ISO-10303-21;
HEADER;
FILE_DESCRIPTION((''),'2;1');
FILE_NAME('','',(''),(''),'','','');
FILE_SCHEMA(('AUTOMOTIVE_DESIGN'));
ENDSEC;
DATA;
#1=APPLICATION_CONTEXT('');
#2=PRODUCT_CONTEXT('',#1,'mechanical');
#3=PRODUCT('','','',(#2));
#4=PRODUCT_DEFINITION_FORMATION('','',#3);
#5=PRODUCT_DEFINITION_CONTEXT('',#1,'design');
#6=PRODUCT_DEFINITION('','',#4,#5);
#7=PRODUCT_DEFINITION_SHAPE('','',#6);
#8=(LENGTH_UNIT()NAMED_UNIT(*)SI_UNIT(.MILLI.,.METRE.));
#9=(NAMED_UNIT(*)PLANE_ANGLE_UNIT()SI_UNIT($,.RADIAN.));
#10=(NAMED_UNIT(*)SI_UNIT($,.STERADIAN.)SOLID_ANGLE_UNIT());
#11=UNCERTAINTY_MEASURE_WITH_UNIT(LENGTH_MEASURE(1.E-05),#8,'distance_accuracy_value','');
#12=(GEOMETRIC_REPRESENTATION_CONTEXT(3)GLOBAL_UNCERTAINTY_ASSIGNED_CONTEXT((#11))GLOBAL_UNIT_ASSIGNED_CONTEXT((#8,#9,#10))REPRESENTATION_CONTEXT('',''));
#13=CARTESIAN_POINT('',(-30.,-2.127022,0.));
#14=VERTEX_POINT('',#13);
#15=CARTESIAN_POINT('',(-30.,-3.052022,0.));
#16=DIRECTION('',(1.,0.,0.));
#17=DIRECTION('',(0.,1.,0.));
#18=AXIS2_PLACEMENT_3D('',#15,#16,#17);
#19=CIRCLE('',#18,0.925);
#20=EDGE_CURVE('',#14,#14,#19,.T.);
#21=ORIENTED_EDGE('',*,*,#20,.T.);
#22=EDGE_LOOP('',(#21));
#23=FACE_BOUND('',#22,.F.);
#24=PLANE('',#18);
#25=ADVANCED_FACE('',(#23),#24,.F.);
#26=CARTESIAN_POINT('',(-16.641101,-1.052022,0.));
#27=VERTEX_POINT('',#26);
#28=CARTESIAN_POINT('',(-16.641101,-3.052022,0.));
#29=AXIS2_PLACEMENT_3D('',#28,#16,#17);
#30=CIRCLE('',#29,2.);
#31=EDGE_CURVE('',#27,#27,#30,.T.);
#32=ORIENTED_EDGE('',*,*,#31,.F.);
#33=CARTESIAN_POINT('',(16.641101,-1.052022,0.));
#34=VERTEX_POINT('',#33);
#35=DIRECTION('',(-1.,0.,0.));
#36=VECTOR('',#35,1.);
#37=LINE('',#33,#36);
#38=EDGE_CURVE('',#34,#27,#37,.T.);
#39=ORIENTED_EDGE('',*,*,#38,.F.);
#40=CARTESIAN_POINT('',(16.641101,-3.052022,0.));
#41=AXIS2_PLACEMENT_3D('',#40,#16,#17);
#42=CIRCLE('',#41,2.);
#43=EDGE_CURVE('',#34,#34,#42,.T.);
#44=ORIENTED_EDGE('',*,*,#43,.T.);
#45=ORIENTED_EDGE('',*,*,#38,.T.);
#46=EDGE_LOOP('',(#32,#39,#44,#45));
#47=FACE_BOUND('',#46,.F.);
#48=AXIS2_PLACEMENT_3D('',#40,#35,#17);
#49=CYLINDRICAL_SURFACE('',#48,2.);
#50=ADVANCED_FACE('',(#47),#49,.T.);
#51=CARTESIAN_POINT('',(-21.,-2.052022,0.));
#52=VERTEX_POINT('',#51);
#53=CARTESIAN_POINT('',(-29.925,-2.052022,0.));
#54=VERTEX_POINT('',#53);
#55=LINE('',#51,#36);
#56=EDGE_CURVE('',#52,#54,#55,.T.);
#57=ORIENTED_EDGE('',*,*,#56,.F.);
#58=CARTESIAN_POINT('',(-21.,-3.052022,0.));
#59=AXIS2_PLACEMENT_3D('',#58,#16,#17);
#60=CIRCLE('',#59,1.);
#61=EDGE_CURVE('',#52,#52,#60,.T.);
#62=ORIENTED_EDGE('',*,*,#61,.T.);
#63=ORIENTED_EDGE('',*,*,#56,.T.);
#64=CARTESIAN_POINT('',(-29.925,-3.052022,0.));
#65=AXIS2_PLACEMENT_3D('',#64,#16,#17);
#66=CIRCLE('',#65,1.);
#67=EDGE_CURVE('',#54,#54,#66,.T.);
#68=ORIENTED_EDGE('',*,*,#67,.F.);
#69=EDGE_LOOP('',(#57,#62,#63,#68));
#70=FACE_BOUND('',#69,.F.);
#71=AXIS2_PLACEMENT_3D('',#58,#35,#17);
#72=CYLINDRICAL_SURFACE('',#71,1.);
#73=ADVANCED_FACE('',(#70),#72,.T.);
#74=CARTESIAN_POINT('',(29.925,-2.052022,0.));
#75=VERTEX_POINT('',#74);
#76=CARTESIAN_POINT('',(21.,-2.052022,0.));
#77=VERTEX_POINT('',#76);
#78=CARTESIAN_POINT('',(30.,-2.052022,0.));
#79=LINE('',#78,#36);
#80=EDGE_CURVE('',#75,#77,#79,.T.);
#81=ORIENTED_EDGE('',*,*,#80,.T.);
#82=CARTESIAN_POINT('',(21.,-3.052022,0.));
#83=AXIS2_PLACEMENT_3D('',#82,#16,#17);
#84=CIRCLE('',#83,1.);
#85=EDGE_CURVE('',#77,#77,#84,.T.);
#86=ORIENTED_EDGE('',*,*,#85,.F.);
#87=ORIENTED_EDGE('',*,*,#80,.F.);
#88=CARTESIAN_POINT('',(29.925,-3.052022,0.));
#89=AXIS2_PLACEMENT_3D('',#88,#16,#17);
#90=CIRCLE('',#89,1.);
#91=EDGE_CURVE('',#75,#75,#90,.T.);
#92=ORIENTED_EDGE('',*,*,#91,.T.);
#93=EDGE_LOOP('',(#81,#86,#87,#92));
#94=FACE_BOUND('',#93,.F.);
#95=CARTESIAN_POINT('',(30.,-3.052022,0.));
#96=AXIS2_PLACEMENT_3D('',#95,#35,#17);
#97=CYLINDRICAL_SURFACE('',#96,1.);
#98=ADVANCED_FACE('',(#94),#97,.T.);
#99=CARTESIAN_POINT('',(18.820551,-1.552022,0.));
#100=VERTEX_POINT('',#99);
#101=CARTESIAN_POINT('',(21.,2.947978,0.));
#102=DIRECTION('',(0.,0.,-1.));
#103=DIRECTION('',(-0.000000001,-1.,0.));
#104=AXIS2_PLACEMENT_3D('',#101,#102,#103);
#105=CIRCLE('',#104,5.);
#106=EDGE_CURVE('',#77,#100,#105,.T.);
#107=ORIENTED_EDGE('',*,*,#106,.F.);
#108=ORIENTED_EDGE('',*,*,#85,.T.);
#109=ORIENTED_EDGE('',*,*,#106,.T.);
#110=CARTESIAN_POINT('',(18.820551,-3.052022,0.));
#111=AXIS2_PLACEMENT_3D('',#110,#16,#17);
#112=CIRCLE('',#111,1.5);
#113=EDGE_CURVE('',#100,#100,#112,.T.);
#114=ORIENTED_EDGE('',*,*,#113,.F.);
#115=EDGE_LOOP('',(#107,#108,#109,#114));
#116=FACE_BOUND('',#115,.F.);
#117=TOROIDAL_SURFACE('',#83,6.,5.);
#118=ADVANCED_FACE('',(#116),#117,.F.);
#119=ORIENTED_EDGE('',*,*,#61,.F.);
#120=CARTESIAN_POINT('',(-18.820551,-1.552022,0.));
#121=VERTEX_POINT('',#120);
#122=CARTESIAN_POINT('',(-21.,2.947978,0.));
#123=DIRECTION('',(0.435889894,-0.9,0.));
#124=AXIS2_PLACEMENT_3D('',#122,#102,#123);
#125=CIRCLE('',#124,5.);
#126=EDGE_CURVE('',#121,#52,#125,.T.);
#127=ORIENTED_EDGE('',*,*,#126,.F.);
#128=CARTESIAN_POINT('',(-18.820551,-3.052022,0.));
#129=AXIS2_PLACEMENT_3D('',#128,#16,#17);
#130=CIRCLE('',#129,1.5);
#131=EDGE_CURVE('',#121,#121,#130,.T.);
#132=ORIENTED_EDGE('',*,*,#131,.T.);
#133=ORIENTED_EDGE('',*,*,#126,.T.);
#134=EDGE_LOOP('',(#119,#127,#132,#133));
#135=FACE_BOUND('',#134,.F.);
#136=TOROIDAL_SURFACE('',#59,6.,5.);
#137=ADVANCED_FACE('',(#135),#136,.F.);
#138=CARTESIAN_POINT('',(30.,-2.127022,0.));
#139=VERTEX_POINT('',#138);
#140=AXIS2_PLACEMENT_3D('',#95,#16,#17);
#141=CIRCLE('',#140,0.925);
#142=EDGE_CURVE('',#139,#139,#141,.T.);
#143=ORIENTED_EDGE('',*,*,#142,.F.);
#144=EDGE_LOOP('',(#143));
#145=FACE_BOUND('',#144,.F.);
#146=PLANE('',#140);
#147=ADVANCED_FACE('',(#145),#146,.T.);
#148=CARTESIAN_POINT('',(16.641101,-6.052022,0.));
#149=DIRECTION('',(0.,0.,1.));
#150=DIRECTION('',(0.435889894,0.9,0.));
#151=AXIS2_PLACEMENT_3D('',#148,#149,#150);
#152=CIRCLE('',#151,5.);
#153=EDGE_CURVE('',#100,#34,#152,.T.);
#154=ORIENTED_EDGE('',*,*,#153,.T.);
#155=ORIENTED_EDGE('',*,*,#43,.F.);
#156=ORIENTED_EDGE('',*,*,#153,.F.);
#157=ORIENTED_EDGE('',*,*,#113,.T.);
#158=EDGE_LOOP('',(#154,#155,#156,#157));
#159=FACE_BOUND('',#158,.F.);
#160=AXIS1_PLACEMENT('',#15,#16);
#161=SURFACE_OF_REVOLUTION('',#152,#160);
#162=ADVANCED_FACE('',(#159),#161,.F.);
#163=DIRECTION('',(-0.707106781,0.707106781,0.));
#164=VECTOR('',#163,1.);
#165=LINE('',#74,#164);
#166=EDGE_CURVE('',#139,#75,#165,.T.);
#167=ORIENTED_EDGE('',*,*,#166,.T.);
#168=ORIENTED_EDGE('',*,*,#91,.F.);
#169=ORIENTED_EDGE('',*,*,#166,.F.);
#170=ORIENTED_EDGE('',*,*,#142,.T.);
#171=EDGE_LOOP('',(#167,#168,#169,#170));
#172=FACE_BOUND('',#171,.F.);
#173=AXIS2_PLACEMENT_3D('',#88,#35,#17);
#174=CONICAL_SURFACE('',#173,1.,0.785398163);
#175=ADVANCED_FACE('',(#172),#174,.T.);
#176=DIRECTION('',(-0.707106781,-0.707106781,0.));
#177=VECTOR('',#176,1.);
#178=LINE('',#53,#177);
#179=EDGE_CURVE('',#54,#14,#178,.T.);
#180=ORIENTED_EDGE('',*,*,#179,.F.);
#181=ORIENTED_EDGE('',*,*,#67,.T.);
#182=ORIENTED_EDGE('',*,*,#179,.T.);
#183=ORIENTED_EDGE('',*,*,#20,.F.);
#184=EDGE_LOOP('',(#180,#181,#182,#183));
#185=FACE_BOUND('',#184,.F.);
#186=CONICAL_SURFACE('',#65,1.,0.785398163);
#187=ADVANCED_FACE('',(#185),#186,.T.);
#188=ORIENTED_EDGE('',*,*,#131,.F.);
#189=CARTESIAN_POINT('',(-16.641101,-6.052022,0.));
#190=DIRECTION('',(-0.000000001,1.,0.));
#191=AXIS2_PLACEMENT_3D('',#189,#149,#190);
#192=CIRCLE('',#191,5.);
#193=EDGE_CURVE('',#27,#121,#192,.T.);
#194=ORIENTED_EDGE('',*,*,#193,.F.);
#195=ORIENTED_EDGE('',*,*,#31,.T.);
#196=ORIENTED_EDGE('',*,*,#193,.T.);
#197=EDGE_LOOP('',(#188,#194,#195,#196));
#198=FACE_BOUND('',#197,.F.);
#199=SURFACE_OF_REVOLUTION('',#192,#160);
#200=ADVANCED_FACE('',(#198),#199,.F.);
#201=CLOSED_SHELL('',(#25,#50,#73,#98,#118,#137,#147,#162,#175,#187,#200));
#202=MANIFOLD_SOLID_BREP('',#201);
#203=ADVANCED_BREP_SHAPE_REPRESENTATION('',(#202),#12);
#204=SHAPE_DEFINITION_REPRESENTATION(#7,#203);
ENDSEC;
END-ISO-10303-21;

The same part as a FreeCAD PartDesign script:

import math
import FreeCAD as App
import Part
import Sketcher

V = App.Vector


def edges_at(feature, points):
    """Names of the edges that pass closest to the given points."""
    edges = feature.Shape.Edges
    near = lambda p: min(range(len(edges)), key=lambda i: edges[i].distToShape(Part.Vertex(*p))[0])
    return sorted({f"Edge{near(p) + 1}" for p in points})

doc = App.newDocument("Part")
body = doc.addObject("PartDesign::Body", "Body")

# Sketch on XY plane
sketch1 = body.newObject("Sketcher::SketchObject", "Sketch")
sketch1.AttachmentSupport = (doc.getObject("XY_Plane"), [""])
sketch1.MapMode = "FlatFace"
sketch1.addGeometry([
    Part.LineSegment(V(-30, -3.1, 0), V(30, -3.1, 0)),  # 0
    Part.LineSegment(V(30, -3.1, 0), V(30, -2.1, 0)),  # 1
    Part.LineSegment(V(30, -2.1, 0), V(21, -2.1, 0)),  # 2
    Part.ArcOfCircle(Part.Circle(V(21, 2.9, 0), V(0, 0, 1), 5), math.radians(-116), math.radians(-90)),  # 3
    Part.ArcOfCircle(Part.Circle(V(16.6, -6.1, 0), V(0, 0, 1), 5), math.radians(64), math.radians(90)),  # 4
    Part.LineSegment(V(16.6, -1.1, 0), V(-16.6, -1.1, 0)),  # 5
    Part.ArcOfCircle(Part.Circle(V(-16.6, -6.1, 0), V(0, 0, 1), 5), math.radians(90), math.radians(116)),  # 6
    Part.ArcOfCircle(Part.Circle(V(-21, 2.9, 0), V(0, 0, 1), 5), math.radians(-90), math.radians(-64)),  # 7
    Part.LineSegment(V(-21, -2.1, 0), V(-30, -2.1, 0)),  # 8
    Part.LineSegment(V(-30, -2.1, 0), V(-30, -3.1, 0)),  # 9
], False)
sketch1.addGeometry(Part.LineSegment(V(-30, -3.1, 0), V(30, -3.1, 0)), True)  # axis
sketch1.addConstraint([
    Sketcher.Constraint("Coincident", 0, 2, 1, 1),
    Sketcher.Constraint("Coincident", 1, 2, 2, 1),
    Sketcher.Constraint("Tangent", 2, 2, 3, 2),
    Sketcher.Constraint("Tangent", 3, 1, 4, 1),
    Sketcher.Constraint("Tangent", 4, 2, 5, 1),
    Sketcher.Constraint("Tangent", 5, 2, 6, 1),
    Sketcher.Constraint("Tangent", 6, 2, 7, 2),
    Sketcher.Constraint("Tangent", 7, 1, 8, 1),
    Sketcher.Constraint("Coincident", 8, 2, 9, 1),
    Sketcher.Constraint("Coincident", 9, 2, 0, 1),
    Sketcher.Constraint("Horizontal", 0),
    Sketcher.Constraint("Vertical", 1),
    Sketcher.Constraint("Horizontal", 2),
    Sketcher.Constraint("Horizontal", 5),
    Sketcher.Constraint("Horizontal", 8),
    Sketcher.Constraint("Vertical", 9),
    Sketcher.Constraint("Horizontal", 10),
    Sketcher.Constraint("Coincident", 10, 1, 9, 2),
    Sketcher.Constraint("Equal", 3, 4),
    Sketcher.Constraint("Equal", 4, 6),
    Sketcher.Constraint("Equal", 6, 7),
    Sketcher.Constraint("Symmetric", 3, 3, 7, 3, -2),
    Sketcher.Constraint("Vertical", 1, 2, 10, 2),
    Sketcher.Constraint("Equal", 2, 8),
    Sketcher.Constraint("Radius", 3, 5.0),
    Sketcher.Constraint("DistanceX", 0, 1, 0, 2, 60.0),
    Sketcher.Constraint("DistanceX", 2, 2, 2, 1, 9.0),
    Sketcher.Constraint("DistanceY", 1, 1, 1, 2, 1.0),
    Sketcher.Constraint("DistanceY", 4, 3, 3, 3, 9.0),
    Sketcher.Constraint("DistanceY", -1, 1, 3, 3, 2.947978),
])
revolution = body.newObject("PartDesign::Revolution", "Revolution")
revolution.Profile = sketch1
revolution.ReferenceAxis = (sketch1, ["Axis0"])
revolution.Angle = 360
doc.recompute()

chamfer = body.newObject("PartDesign::Chamfer", "Chamfer")
chamfer.Base = (revolution, edges_at(revolution, [(30, -4.052, 0), (-30, -4.052, 0)]))
chamfer.Size = 0.075

doc.recompute()
